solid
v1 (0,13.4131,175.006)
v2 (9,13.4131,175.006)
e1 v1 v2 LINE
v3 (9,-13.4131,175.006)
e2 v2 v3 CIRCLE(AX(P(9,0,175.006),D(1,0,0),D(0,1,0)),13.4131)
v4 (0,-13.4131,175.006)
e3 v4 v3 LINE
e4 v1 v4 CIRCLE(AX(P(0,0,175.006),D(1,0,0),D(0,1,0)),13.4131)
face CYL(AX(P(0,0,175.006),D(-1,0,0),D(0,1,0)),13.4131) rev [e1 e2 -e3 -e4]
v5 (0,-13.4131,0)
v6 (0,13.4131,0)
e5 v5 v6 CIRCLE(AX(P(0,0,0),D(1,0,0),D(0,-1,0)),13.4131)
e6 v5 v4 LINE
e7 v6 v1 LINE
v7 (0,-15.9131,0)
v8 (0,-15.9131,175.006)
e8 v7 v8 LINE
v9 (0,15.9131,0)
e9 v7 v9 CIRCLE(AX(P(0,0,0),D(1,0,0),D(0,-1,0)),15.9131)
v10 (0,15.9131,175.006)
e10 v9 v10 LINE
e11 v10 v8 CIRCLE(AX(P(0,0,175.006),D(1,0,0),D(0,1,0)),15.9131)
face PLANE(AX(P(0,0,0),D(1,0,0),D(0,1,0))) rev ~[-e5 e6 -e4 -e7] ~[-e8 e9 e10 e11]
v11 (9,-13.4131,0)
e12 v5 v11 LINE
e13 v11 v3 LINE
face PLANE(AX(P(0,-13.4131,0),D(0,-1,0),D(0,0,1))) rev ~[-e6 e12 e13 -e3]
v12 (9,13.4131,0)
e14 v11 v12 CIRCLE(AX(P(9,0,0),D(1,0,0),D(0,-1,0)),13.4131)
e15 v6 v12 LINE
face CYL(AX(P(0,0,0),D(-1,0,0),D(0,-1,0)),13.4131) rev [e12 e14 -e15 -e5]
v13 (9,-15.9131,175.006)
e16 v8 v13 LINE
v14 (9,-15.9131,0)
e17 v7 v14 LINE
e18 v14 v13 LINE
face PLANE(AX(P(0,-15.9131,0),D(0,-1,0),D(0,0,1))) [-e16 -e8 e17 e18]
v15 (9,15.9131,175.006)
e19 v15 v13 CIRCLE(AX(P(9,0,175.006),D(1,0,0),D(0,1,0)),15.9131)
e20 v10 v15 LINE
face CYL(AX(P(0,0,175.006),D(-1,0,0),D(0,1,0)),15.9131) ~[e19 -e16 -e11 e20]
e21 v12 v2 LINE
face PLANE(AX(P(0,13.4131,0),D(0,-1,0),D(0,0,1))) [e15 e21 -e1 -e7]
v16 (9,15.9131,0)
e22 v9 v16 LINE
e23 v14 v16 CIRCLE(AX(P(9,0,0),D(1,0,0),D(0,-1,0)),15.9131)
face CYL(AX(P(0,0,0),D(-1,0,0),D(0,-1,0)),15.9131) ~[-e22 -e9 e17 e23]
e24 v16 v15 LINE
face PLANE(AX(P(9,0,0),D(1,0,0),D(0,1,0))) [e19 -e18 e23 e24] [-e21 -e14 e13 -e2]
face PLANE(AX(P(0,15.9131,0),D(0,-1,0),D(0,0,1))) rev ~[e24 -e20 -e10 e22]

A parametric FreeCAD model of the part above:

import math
import FreeCAD as App
import Part
import Sketcher

V = App.Vector
Q = App.Units.Quantity

doc = App.newDocument("Part")
body = doc.addObject("PartDesign::Body", "Body")

sketch1 = doc.addObject("Sketcher::SketchObject", "Sketch")
body.addObject(sketch1)
sketch1.AttachmentSupport = (doc.YZ_Plane, [""])
sketch1.MapMode = "FlatFace"
sketch1.addGeometry([
    Part.LineSegment(V(-16, 175, 0), V(-16, 0, 0)),
    Part.ArcOfCircle(Part.Circle(V(0, 0, 0), V(0, 0, 1), 16), math.radians(180), math.radians(360)),
    Part.LineSegment(V(16, 0, 0), V(16, 175, 0)),
    Part.ArcOfCircle(Part.Circle(V(0, 175, 0), V(0, 0, 1), 16), math.radians(0), math.radians(180)),
    Part.ArcOfCircle(Part.Circle(V(0, 0, 0), V(0, 0, 1), 13), math.radians(180), math.radians(360)),
    Part.LineSegment(V(-13, 0, 0), V(-13, 175, 0)),
    Part.ArcOfCircle(Part.Circle(V(0, 175, 0), V(0, 0, 1), 13), math.radians(0), math.radians(180)),
    Part.LineSegment(V(13, 175, 0), V(13, 0, 0)),
], False)
sketch1.addConstraint([
    Sketcher.Constraint("Tangent", 0, 2, 1, 1),
    Sketcher.Constraint("Tangent", 1, 2, 2, 1),
    Sketcher.Constraint("Tangent", 2, 2, 3, 1),
    Sketcher.Constraint("Tangent", 3, 2, 0, 1),
    Sketcher.Constraint("Tangent", 4, 1, 5, 1),
    Sketcher.Constraint("Tangent", 5, 2, 6, 2),
    Sketcher.Constraint("Tangent", 6, 1, 7, 1),
    Sketcher.Constraint("Tangent", 7, 2, 4, 2),
    Sketcher.Constraint("Vertical", 0),
    Sketcher.Constraint("Vertical", 2),
    Sketcher.Constraint("Vertical", 5),
    Sketcher.Constraint("Vertical", 7),
    Sketcher.Constraint("Coincident", 1, 3, -1, 1),
    Sketcher.Constraint("Coincident", 4, 3, -1, 1),
    Sketcher.Constraint("Horizontal", 6, 3, 2, 2),
    Sketcher.Constraint("DistanceY", 0, 2, 0, 1, Q("6.89 in")),
    Sketcher.Constraint("Radius", 4, Q("13.413 mm")),
    Sketcher.Constraint("Radius", 1, Q("0.6265 in")),
])
pad1 = doc.addObject("PartDesign::Pad", "Pad")
body.addObject(pad1)
pad1.Profile = sketch1
pad1.Length = 9

doc.recompute()
